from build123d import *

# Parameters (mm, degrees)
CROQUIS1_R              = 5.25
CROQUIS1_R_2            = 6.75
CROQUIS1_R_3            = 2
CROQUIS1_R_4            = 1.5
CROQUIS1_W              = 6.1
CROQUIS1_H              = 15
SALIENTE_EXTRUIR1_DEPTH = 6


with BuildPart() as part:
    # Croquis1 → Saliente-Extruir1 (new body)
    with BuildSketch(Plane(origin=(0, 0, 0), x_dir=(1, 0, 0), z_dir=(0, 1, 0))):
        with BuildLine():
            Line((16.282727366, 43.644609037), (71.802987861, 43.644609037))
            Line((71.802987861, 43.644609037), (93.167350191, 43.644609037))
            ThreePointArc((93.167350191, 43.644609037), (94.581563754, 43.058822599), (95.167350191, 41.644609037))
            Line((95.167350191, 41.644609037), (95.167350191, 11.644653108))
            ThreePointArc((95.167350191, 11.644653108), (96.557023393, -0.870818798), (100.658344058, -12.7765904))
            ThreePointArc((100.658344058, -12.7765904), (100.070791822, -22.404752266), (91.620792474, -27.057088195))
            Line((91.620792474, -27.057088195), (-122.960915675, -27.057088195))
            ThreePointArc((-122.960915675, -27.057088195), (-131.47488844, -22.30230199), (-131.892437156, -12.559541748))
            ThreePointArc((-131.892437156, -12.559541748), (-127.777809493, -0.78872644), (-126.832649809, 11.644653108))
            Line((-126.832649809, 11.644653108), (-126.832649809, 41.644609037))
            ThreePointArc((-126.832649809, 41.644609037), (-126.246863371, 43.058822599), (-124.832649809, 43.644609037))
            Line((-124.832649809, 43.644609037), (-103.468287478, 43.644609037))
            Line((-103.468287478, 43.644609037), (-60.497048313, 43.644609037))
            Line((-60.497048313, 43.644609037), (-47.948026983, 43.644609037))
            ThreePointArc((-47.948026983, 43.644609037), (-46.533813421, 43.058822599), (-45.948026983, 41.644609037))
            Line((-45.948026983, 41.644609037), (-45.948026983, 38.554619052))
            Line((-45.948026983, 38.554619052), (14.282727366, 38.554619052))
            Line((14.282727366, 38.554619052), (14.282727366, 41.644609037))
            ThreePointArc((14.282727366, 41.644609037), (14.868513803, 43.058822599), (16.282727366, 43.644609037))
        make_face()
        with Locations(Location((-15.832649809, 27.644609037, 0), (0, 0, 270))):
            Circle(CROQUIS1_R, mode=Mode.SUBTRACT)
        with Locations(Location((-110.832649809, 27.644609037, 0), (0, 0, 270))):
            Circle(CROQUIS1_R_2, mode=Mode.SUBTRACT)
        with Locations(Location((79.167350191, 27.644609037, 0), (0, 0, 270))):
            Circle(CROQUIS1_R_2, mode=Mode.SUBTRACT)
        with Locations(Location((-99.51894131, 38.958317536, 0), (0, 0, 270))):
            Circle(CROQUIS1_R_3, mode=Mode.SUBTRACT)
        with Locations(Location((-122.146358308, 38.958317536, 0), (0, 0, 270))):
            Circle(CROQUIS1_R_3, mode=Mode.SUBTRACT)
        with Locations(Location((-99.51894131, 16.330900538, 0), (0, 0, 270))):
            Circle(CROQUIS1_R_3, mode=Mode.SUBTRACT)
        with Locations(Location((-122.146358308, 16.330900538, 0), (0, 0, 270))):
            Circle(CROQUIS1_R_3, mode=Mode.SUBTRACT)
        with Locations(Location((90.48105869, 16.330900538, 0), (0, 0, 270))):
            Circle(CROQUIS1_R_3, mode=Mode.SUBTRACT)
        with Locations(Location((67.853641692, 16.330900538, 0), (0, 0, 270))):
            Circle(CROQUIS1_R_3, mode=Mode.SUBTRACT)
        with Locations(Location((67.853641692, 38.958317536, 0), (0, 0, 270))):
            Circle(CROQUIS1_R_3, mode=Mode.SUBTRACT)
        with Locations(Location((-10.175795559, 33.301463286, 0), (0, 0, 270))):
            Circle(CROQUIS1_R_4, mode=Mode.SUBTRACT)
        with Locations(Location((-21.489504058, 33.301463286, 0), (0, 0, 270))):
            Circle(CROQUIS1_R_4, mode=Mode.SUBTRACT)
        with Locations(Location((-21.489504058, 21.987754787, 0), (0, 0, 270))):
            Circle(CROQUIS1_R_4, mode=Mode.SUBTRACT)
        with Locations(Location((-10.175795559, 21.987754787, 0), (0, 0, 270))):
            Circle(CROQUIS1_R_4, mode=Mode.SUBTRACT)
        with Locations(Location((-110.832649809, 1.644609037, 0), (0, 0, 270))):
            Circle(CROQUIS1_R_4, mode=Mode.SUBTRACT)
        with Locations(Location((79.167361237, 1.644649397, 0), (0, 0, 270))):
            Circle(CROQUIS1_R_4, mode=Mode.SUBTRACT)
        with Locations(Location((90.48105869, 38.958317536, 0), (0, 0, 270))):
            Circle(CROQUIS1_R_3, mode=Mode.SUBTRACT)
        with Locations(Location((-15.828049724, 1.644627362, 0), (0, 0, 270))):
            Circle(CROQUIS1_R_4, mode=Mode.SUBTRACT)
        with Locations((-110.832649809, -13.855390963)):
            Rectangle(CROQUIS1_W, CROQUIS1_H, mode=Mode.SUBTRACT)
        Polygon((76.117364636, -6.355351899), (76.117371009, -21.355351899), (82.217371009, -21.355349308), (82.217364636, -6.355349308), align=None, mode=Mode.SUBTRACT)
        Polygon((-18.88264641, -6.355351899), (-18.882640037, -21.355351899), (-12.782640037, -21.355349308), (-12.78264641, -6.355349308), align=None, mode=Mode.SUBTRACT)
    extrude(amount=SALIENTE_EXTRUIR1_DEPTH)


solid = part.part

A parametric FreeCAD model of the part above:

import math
import FreeCAD as App
import Part
import Sketcher
from FreeCAD import Vector
Q = App.Units.Quantity


def add_polygon(sketch, points):
    """Adds a closed chain of lines whose ends are joined by coincident constraints."""
    first, n = sketch.GeometryCount, len(points)
    for a, b in zip(points, points[1:] + points[:1]):
        sketch.addGeometry(Part.LineSegment(App.Vector(*a, 0), App.Vector(*b, 0)), False)
    for i in range(n):
        sketch.addConstraint(Sketcher.Constraint("Coincident", first + i, 2, first + (i + 1) % n, 1))

doc = App.newDocument("Part")
body = doc.addObject("PartDesign::Body", "Body")

sketch1 = doc.addObject("Sketcher::SketchObject", "Sketch")
body.addObject(sketch1)
sketch1.AttachmentSupport = (doc.XZ_Plane, [""])
sketch1.MapMode = "FlatFace"
sketch1.addGeometry(Part.LineSegment(Vector(93.2, -43.6, 0), Vector(16.3, -43.6, 0)), False)
sketch1.addGeometry(Part.ArcOfCircle(Part.Circle(Vector(16.3, -41.6, 0), Vector(0, 0, 1), 2), math.radians(180), math.radians(270)), False)
sketch1.addGeometry(Part.LineSegment(Vector(14.3, -41.6, 0), Vector(14.3, -38.6, 0)), False)
sketch1.addGeometry(Part.LineSegment(Vector(14.3, -38.6, 0), Vector(-45.9, -38.6, 0)), False)
sketch1.addGeometry(Part.LineSegment(Vector(-45.9, -38.6, 0), Vector(-45.9, -41.6, 0)), False)
sketch1.addGeometry(Part.ArcOfCircle(Part.Circle(Vector(-47.9, -41.6, 0), Vector(0, 0, 1), 2), math.radians(-90), math.radians(0)), False)
sketch1.addGeometry(Part.LineSegment(Vector(-47.9, -43.6, 0), Vector(-124.8, -43.6, 0)), False)
sketch1.addGeometry(Part.ArcOfCircle(Part.Circle(Vector(-124.8, -41.6, 0), Vector(0, 0, 1), 2), math.radians(-180), math.radians(-90)), False)
sketch1.addGeometry(Part.LineSegment(Vector(-126.8, -41.6, 0), Vector(-126.8, -11.6, 0)), False)
sketch1.addGeometry(Part.ArcOfCircle(Part.Circle(Vector(-174.8, -9, 0), Vector(0, 0, 1), 48), math.radians(-3), math.radians(27)), False)
sketch1.addGeometry(Part.ArcOfCircle(Part.Circle(Vector(-123, 17.1, 0), Vector(0, 0, 1), 10), math.radians(90), math.radians(207)), False)
sketch1.addGeometry(Part.LineSegment(Vector(-123, 27.1, 0), Vector(91.6, 27.1, 0)), False)
sketch1.addGeometry(Part.ArcOfCircle(Part.Circle(Vector(91.6, 17.1, 0), Vector(0, 0, 1), 10), math.radians(-25), math.radians(90)), False)
sketch1.addGeometry(Part.ArcOfCircle(Part.Circle(Vector(152.2, -11.6, 0), Vector(0, 0, 1), 57.1), math.radians(155), math.radians(180)), False)
sketch1.addGeometry(Part.LineSegment(Vector(95.2, -11.6, 0), Vector(95.2, -41.6, 0)), False)
sketch1.addGeometry(Part.ArcOfCircle(Part.Circle(Vector(93.2, -41.6, 0), Vector(0, 0, 1), 2), math.radians(-90), math.radians(0)), False)
add_polygon(sketch1, [(76.1, 6.4), (82.2, 6.4), (82.2, 21.4), (76.1, 21.4)])
add_polygon(sketch1, [(-18.9, 6.4), (-12.8, 6.4), (-12.8, 21.4), (-18.9, 21.4)])
sketch1.addGeometry(Part.Circle(Vector(79.2, -1.6, 0), Vector(0, 0, 1), 1.5), False)
sketch1.addGeometry(Part.Circle(Vector(-15.8, -1.6, 0), Vector(0, 0, 1), 1.5), False)
add_polygon(sketch1, [(-113.9, 21.4), (-113.9, 6.4), (-107.8, 6.4), (-107.8, 21.4)])
sketch1.addGeometry(Part.Circle(Vector(-110.8, -1.6, 0), Vector(0, 0, 1), 1.5), False)
sketch1.addGeometry(Part.Circle(Vector(90.5, -16.3, 0), Vector(0, 0, 1), 2), False)
sketch1.addGeometry(Part.Circle(Vector(67.9, -16.3, 0), Vector(0, 0, 1), 2), False)
sketch1.addGeometry(Part.Circle(Vector(-10.2, -22, 0), Vector(0, 0, 1), 1.5), False)
sketch1.addGeometry(Part.Circle(Vector(79.2, -27.6, 0), Vector(0, 0, 1), 6.8), False)
sketch1.addGeometry(Part.Circle(Vector(90.5, -39, 0), Vector(0, 0, 1), 2), False)
sketch1.addGeometry(Part.Circle(Vector(67.9, -39, 0), Vector(0, 0, 1), 2), False)
sketch1.addGeometry(Part.Circle(Vector(-10.2, -33.3, 0), Vector(0, 0, 1), 1.5), False)
sketch1.addGeometry(Part.Circle(Vector(-21.5, -22, 0), Vector(0, 0, 1), 1.5), False)
sketch1.addGeometry(Part.Circle(Vector(-99.5, -16.3, 0), Vector(0, 0, 1), 2), False)
sketch1.addGeometry(Part.Circle(Vector(-122.1, -16.3, 0), Vector(0, 0, 1), 2), False)
sketch1.addGeometry(Part.Circle(Vector(-15.8, -27.6, 0), Vector(0, 0, 1), 5.2), False)
sketch1.addGeometry(Part.Circle(Vector(-21.5, -33.3, 0), Vector(0, 0, 1), 1.5), False)
sketch1.addGeometry(Part.Circle(Vector(-110.8, -27.6, 0), Vector(0, 0, 1), 6.8), False)
sketch1.addGeometry(Part.Circle(Vector(-99.5, -39, 0), Vector(0, 0, 1), 2), False)
sketch1.addGeometry(Part.Circle(Vector(-122.1, -39, 0), Vector(0, 0, 1), 2), False)
sketch1.addConstraint(Sketcher.Constraint("Tangent", 0, 2, 1, 2))
sketch1.addConstraint(Sketcher.Constraint("Tangent", 1, 1, 2, 1))
sketch1.addConstraint(Sketcher.Constraint("Coincident", 2, 2, 3, 1))
sketch1.addConstraint(Sketcher.Constraint("Coincident", 3, 2, 4, 1))
sketch1.addConstraint(Sketcher.Constraint("Tangent", 4, 2, 5, 2))
sketch1.addConstraint(Sketcher.Constraint("Tangent", 5, 1, 6, 1))
sketch1.addConstraint(Sketcher.Constraint("Tangent", 6, 2, 7, 2))
sketch1.addConstraint(Sketcher.Constraint("Tangent", 7, 1, 8, 1))
sketch1.addConstraint(Sketcher.Constraint("Coincident", 8, 2, 9, 1))
sketch1.addConstraint(Sketcher.Constraint("Tangent", 9, 2, 10, 2))
sketch1.addConstraint(Sketcher.Constraint("Tangent", 10, 1, 11, 1))
sketch1.addConstraint(Sketcher.Constraint("Tangent", 11, 2, 12, 2))
sketch1.addConstraint(Sketcher.Constraint("Tangent", 12, 1, 13, 1))
sketch1.addConstraint(Sketcher.Constraint("Tangent", 13, 2, 14, 1))
sketch1.addConstraint(Sketcher.Constraint("Tangent", 14, 2, 15, 2))
sketch1.addConstraint(Sketcher.Constraint("Tangent", 15, 1, 0, 1))
sketch1.addConstraint(Sketcher.Constraint("Horizontal", 0))
sketch1.addConstraint(Sketcher.Constraint("Vertical", 2))
sketch1.addConstraint(Sketcher.Constraint("Horizontal", 3))
sketch1.addConstraint(Sketcher.Constraint("Vertical", 4))
sketch1.addConstraint(Sketcher.Constraint("Horizontal", 6))
sketch1.addConstraint(Sketcher.Constraint("Vertical", 8))
sketch1.addConstraint(Sketcher.Constraint("Horizontal", 11))
sketch1.addConstraint(Sketcher.Constraint("Vertical", 14))
sketch1.addConstraint(Sketcher.Constraint("Vertical", 26))
sketch1.addConstraint(Sketcher.Constraint("Horizontal", 27))
sketch1.addConstraint(Sketcher.Constraint("Vertical", 28))
sketch1.addConstraint(Sketcher.Constraint("Horizontal", 29))
sketch1.addConstraint(Sketcher.Constraint("Equal", 1, 5))
sketch1.addConstraint(Sketcher.Constraint("Equal", 5, 7))
sketch1.addConstraint(Sketcher.Constraint("Equal", 10, 12))
sketch1.addConstraint(Sketcher.Constraint("Equal", 7, 15))
sketch1.addConstraint(Sketcher.Constraint("Equal", 24, 25))
sketch1.addConstraint(Sketcher.Constraint("Equal", 25, 30))
sketch1.addConstraint(Sketcher.Constraint("Equal", 15, 31))
sketch1.addConstraint(Sketcher.Constraint("Equal", 31, 32))
sketch1.addConstraint(Sketcher.Constraint("Equal", 30, 33))
sketch1.addConstraint(Sketcher.Constraint("Equal", 32, 35))
sketch1.addConstraint(Sketcher.Constraint("Equal", 35, 36))
sketch1.addConstraint(Sketcher.Constraint("Equal", 33, 37))
sketch1.addConstraint(Sketcher.Constraint("Equal", 37, 38))
sketch1.addConstraint(Sketcher.Constraint("Equal", 36, 39))
sketch1.addConstraint(Sketcher.Constraint("Equal", 39, 40))
sketch1.addConstraint(Sketcher.Constraint("Equal", 38, 42))
sketch1.addConstraint(Sketcher.Constraint("Equal", 34, 43))
sketch1.addConstraint(Sketcher.Constraint("Equal", 40, 44))
sketch1.addConstraint(Sketcher.Constraint("Equal", 44, 45))
sketch1.addConstraint(Sketcher.Constraint("Perpendicular", 16, 17))
sketch1.addConstraint(Sketcher.Constraint("Perpendicular", 17, 18))
sketch1.addConstraint(Sketcher.Constraint("Perpendicular", 18, 19))
sketch1.addConstraint(Sketcher.Constraint("Perpendicular", 19, 20))
sketch1.addConstraint(Sketcher.Constraint("Perpendicular", 20, 21))
sketch1.addConstraint(Sketcher.Constraint("Perpendicular", 21, 22))
sketch1.addConstraint(Sketcher.Constraint("Perpendicular", 22, 23))
sketch1.addConstraint(Sketcher.Constraint("Horizontal", 1, 3, 5, 3))
sketch1.addConstraint(Sketcher.Constraint("Horizontal", 31, 3, 32, 3))
sketch1.addConstraint(Sketcher.Constraint("Horizontal", 35, 3, 36, 3))
sketch1.addConstraint(Sketcher.Constraint("Horizontal", 33, 3, 38, 3))
sketch1.addConstraint(Sketcher.Constraint("Horizontal", 32, 3, 39, 3))
sketch1.addConstraint(Sketcher.Constraint("Horizontal", 39, 3, 40, 3))
sketch1.addConstraint(Sketcher.Constraint("Horizontal", 34, 3, 41, 3))
sketch1.addConstraint(Sketcher.Constraint("Horizontal", 37, 3, 42, 3))
sketch1.addConstraint(Sketcher.Constraint("Horizontal", 41, 3, 43, 3))
sketch1.addConstraint(Sketcher.Constraint("Horizontal", 36, 3, 44, 3))
sketch1.addConstraint(Sketcher.Constraint("Horizontal", 44, 3, 45, 3))
sketch1.addConstraint(Sketcher.Constraint("Horizontal", 13, 3, 8, 2))
sketch1.addConstraint(Sketcher.Constraint("Horizontal", 16, 2, 20, 2))
sketch1.addConstraint(Sketcher.Constraint("Horizontal", 17, 2, 21, 2))
sketch1.addConstraint(Sketcher.Constraint("Vertical", 31, 3, 35, 3))
sketch1.addConstraint(Sketcher.Constraint("Vertical", 32, 3, 36, 3))
sketch1.addConstraint(Sketcher.Constraint("Vertical", 33, 3, 37, 3))
sketch1.addConstraint(Sketcher.Constraint("Vertical", 38, 3, 42, 3))
sketch1.addConstraint(Sketcher.Constraint("Vertical", 30, 3, 43, 3))
sketch1.addConstraint(Sketcher.Constraint("Vertical", 39, 3, 44, 3))
sketch1.addConstraint(Sketcher.Constraint("Vertical", 40, 3, 45, 3))
sketch1.addConstraint(Sketcher.Constraint("Equal", 0, 6))
sketch1.addConstraint(Sketcher.Constraint("Equal", 18, 20))
sketch1.addConstraint(Sketcher.Constraint("Diameter", 24, Q("3 mm")))
sketch1.addConstraint(Sketcher.Constraint("Diameter", 31, Q("4 mm")))
sketch1.addConstraint(Sketcher.Constraint("Radius", 10, Q("10 mm")))
sketch1.addConstraint(Sketcher.Constraint("Diameter", 34, Q("13.5 mm")))
sketch1.addConstraint(Sketcher.Constraint("Diameter", 41, Q("10.5 mm")))
sketch1.addConstraint(Sketcher.Constraint("DistanceY", 26, 2, 26, 1, Q("15 mm")))
sketch1.addConstraint(Sketcher.Constraint("Distance", 17, Q("15 mm")))
sketch1.addConstraint(Sketcher.Constraint("DistanceX", 27, 1, 27, 2, Q("6.1 mm")))
sketch1.addConstraint(Sketcher.Constraint("DistanceX", 7, 3, 15, 3, Q("218 mm")))
sketch1.addConstraint(Sketcher.Constraint("DistanceX", 7, 3, 30, 3, Q("14 mm")))
sketch1.addConstraint(Sketcher.Constraint("DistanceY", 7, 3, 30, 3, Q("40 mm")))
sketch1.addConstraint(Sketcher.Constraint("DistanceX", 34, 3, 15, 3, Q("14 mm")))
sketch1.addConstraint(Sketcher.Constraint("DistanceY", 15, 3, 34, 3, Q("14 mm")))
sketch1.addConstraint(Sketcher.Constraint("DistanceY", 24, 3, 16, 2, Q("7.999999 mm")))
sketch1.addConstraint(Sketcher.Constraint("DistanceY", 24, 3, 18, 2, Q("23.000001 mm")))
sketch1.addConstraint(Sketcher.Constraint("DistanceY", 30, 3, 26, 2, Q("8 mm")))
sketch1.addConstraint(Sketcher.Constraint("Distance", 16, Q("6.1 mm")))
sketch1.addConstraint(Sketcher.Constraint("DistanceX", 26, 2, 30, 3, Q("3.05 mm")))
sketch1.addConstraint(Sketcher.Constraint("Radius", 9, Q("48.018278 mm")))
sketch1.addConstraint(Sketcher.Constraint("Radius", 13, Q("57.052345 mm")))
sketch1.addConstraint(Sketcher.Constraint("DistanceY", 39, 3, 9, 3, Q("7.293999 mm")))
sketch1.addConstraint(Sketcher.Constraint("DistanceX", 11, 1, 11, 2, Q("214.581708 mm")))
sketch1.addConstraint(Sketcher.Constraint("DistanceY", 2, 1, 2, 2, Q("3.08999 mm")))
sketch1.addConstraint(Sketcher.Constraint("DistanceY", 9, 3, -1, 1, Q("9.036902 mm")))
sketch1.addConstraint(Sketcher.Constraint("DistanceX", 30, 3, 25, 3, Q("95.0046 mm")))
sketch1.addConstraint(Sketcher.Constraint("DistanceX", 41, 3, 25, 3, Q("0.0046 mm")))
sketch1.addConstraint(Sketcher.Constraint("DistanceX", 0, 2, 0, 1, Q("76.884623 mm")))
sketch1.addConstraint(Sketcher.Constraint("DistanceY", 8, 1, 8, 2, Q("29.999956 mm")))
sketch1.addConstraint(Sketcher.Constraint("DistanceY", 1, 3, -1, 1, Q("41.644609 mm")))
sketch1.addConstraint(Sketcher.Constraint("DistanceX", 7, 3, -1, 1, Q("124.83265 mm")))
sketch1.addConstraint(Sketcher.Constraint("DistanceX", -1, 1, 24, 3, Q("79.167361 mm")))
sketch1.addConstraint(Sketcher.Constraint("DistanceY", 24, 3, -1, 1, Q("1.644649 mm")))
sketch1.addConstraint(Sketcher.Constraint("DistanceX", -1, 1, 31, 3, Q("90.481059 mm")))
sketch1.addConstraint(Sketcher.Constraint("DistanceX", -1, 1, 32, 3, Q("67.853642 mm")))
sketch1.addConstraint(Sketcher.Constraint("DistanceX", 39, 3, -1, 1, Q("99.518941 mm")))
sketch1.addConstraint(Sketcher.Constraint("DistanceX", 40, 3, -1, 1, Q("122.146358 mm")))
sketch1.addConstraint(Sketcher.Constraint("DistanceX", -1, 1, 17, 2, Q("82.217371 mm")))
sketch1.addConstraint(Sketcher.Constraint("DistanceX", 21, 2, -1, 1, Q("12.78264 mm")))
sketch1.addConstraint(Sketcher.Constraint("DistanceY", 1, 3, 25, 3, Q("39.999982 mm")))
sketch1.addConstraint(Sketcher.Constraint("DistanceX", 5, 3, 33, 3, Q("37.772231 mm")))
sketch1.addConstraint(Sketcher.Constraint("DistanceY", 15, 3, 35, 3, Q("2.686292 mm")))
sketch1.addConstraint(Sketcher.Constraint("DistanceY", 37, 3, 33, 3, Q("11.313708 mm")))
sketch1.addConstraint(Sketcher.Constraint("DistanceX", 38, 3, 33, 3, Q("11.313708 mm")))
sketch1.addConstraint(Sketcher.Constraint("DistanceY", 33, 3, -1, 1, Q("21.987755 mm")))
pad1 = doc.addObject("PartDesign::Pad", "Pad")
body.addObject(pad1)
pad1.Profile = sketch1
pad1.Length = 6
pad1.Reversed = True

doc.recompute()
